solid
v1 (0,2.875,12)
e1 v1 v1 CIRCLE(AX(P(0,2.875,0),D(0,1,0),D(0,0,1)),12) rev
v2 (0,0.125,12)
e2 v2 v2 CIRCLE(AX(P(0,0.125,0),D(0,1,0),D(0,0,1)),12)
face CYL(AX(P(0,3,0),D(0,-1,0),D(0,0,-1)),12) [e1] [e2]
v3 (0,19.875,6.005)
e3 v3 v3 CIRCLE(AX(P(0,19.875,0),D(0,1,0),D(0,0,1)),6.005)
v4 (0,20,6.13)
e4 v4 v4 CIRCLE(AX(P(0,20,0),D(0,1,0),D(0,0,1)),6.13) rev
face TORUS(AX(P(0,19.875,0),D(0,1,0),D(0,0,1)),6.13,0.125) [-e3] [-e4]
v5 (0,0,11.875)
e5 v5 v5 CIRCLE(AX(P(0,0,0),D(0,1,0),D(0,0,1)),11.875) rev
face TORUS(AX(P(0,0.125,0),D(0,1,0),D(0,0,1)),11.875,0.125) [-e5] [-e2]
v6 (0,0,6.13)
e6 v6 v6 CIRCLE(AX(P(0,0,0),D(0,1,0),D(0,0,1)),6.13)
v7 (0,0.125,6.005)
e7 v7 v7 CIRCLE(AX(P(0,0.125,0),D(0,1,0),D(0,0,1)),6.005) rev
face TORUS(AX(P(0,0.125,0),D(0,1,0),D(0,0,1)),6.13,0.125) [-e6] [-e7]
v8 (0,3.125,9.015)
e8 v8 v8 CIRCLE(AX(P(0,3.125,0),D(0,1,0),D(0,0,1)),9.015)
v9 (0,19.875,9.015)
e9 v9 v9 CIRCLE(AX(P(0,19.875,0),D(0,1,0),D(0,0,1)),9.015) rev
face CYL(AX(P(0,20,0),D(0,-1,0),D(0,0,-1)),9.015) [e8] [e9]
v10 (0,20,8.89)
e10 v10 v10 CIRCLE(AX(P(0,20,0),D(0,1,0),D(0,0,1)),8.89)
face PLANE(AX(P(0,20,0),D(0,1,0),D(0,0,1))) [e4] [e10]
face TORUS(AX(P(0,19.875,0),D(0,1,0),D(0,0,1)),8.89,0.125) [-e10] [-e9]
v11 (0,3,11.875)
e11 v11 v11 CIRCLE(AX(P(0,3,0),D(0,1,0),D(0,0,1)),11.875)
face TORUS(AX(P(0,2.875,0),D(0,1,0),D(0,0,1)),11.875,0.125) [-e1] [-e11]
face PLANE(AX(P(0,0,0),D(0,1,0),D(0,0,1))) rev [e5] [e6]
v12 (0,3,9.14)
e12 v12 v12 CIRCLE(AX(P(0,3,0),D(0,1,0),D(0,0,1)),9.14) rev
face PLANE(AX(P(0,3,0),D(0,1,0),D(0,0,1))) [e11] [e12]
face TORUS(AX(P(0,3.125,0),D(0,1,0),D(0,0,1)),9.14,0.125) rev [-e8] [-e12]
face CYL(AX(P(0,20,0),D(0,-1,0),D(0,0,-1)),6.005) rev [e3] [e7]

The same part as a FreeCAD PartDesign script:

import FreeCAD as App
import Part
import Sketcher

V = App.Vector
Q = App.Units.Quantity


def edges_at(feature, points):
    """Names of the edges that pass closest to the given points."""
    edges = feature.Shape.Edges
    near = lambda p: min(range(len(edges)), key=lambda i: edges[i].distToShape(Part.Vertex(*p))[0])
    return sorted({f"Edge{near(p) + 1}" for p in points})

doc = App.newDocument("Part")
body = doc.addObject("PartDesign::Body", "Body")

# Sketch on XZ plane
sketch1 = body.newObject("Sketcher::SketchObject", "Sketch")
sketch1.AttachmentSupport = (doc.getObject("XZ_Plane"), [""])
sketch1.MapMode = "FlatFace"
sketch1.addGeometry([
    Part.Circle(V(0, 0, 0), V(0, 0, 1), 9),
    Part.Circle(V(0, 0, 0), V(0, 0, 1), 6),
], False)
sketch1.addConstraint([
    Sketcher.Constraint("Coincident", 0, 3, -1, 1),
    Sketcher.Constraint("Coincident", 1, 3, -1, 1),
    Sketcher.Constraint("Diameter", 0, Q("18.03 mm")),
    Sketcher.Constraint("Diameter", 1, Q("12.01 mm")),
])
pad1 = body.newObject("PartDesign::Pad", "Pad")
pad1.Profile = sketch1
pad1.Length = 20
pad1.Reversed = True

# Sketch on XZ plane
sketch2 = body.newObject("Sketcher::SketchObject", "Sketch001")
sketch2.AttachmentSupport = (doc.getObject("XZ_Plane"), [""])
sketch2.MapMode = "FlatFace"
sketch2.addGeometry([
    Part.Circle(V(0, 0, 0), V(0, 0, 1), 12),
    Part.Circle(V(0, 0, 0), V(0, 0, 1), 9),
], False)
sketch2.addConstraint([
    Sketcher.Constraint("Coincident", 0, 3, -1, 1),
    Sketcher.Constraint("Coincident", 1, 3, -1, 1),
    Sketcher.Constraint("Diameter", 0, Q("24 mm")),
    Sketcher.Constraint("Diameter", 1, Q("18.03 mm")),
])
pad2 = body.newObject("PartDesign::Pad", "Pad001")
pad2.Profile = sketch2
pad2.Length = 3
pad2.Reversed = True
doc.recompute()

fillet = body.newObject("PartDesign::Fillet", "Fillet")
fillet.Base = (pad2, edges_at(pad2, [
    (-12, 0, 0),
    (-9.015, 3, 0),
    (-9.015, 20, 0),
    (-6.005, 0, 0),
    (-6.005, 20, 0),
    (-12, 3, 0),
]))
fillet.Radius = 0.125

doc.recompute()
